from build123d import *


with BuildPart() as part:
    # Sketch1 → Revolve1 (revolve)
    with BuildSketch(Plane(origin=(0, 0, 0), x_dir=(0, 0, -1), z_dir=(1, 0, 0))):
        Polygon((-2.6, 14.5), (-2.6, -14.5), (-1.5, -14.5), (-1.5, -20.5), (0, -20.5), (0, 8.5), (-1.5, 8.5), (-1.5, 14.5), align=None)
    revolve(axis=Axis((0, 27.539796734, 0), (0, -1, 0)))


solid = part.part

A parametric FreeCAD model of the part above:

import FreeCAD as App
import Part
import Sketcher

V = App.Vector


def add_polygon(sketch, points):
    """Adds a closed chain of lines whose ends are joined by coincident constraints."""
    first, n = sketch.GeometryCount, len(points)
    for a, b in zip(points, points[1:] + points[:1]):
        sketch.addGeometry(Part.LineSegment(App.Vector(*a, 0), App.Vector(*b, 0)), False)
    for i in range(n):
        sketch.addConstraint(Sketcher.Constraint("Coincident", first + i, 2, first + (i + 1) % n, 1))

doc = App.newDocument("Part")
params = doc.addObject("Spreadsheet::Sheet", "Params")
for row, (alias, value) in enumerate([
    ("sketch1_width", "29 mm"),
    ("sketch1_width2", "6 mm"),
    ("sketch1_height", "1.1 mm"),
    ("sketch1_height2", "1.5 mm"),
    ("revolution_angle", "360 deg"),
], start=1):
    params.set(f"A{row}", alias)
    params.set(f"B{row}", "=" + value)
    params.setAlias(f"B{row}", alias)

body = doc.addObject("PartDesign::Body", "Body")

sketch1 = doc.addObject("Sketcher::SketchObject", "Sketch")
body.addObject(sketch1)
sketch1.AttachmentSupport = (doc.YZ_Plane, [""])
sketch1.MapMode = "FlatFace"
add_polygon(sketch1, [(14.5, 2.6), (-14.5, 2.6), (-14.5, 1.5), (-20.5, 1.5), (-20.5, 0), (8.5, 0), (8.5, 1.5), (14.5, 1.5)])
sketch1.addConstraint(Sketcher.Constraint("Horizontal", 0))
sketch1.addConstraint(Sketcher.Constraint("Vertical", 1))
sketch1.addConstraint(Sketcher.Constraint("Horizontal", 2))
sketch1.addConstraint(Sketcher.Constraint("Vertical", 3))
sketch1.addConstraint(Sketcher.Constraint("Horizontal", 4))
sketch1.addConstraint(Sketcher.Constraint("Vertical", 5))
sketch1.addConstraint(Sketcher.Constraint("Horizontal", 6))
sketch1.addConstraint(Sketcher.Constraint("Vertical", 7))
sketch1.addConstraint(Sketcher.Constraint("Symmetric", 1, 2, 6, 2, -2))
sketch1.addConstraint(Sketcher.Constraint("PointOnObject", 3, 2, -1))
sketch1.addConstraint(Sketcher.Constraint("Equal", 0, 4))
sketch1.addConstraint(Sketcher.Constraint("DistanceX", 0, 2, 0, 1, 29.0))
sketch1.addConstraint(Sketcher.Constraint("DistanceX", 2, 2, 2, 1, 6.0))
sketch1.addConstraint(Sketcher.Constraint("DistanceY", 1, 2, 1, 1, 1.1))
sketch1.addConstraint(Sketcher.Constraint("DistanceY", 3, 2, 3, 1, 1.5))
sketch1.setExpression("Constraints[19]", "Params.sketch1_width")
sketch1.setExpression("Constraints[20]", "Params.sketch1_width2")
sketch1.setExpression("Constraints[21]", "Params.sketch1_height")
sketch1.setExpression("Constraints[22]", "Params.sketch1_height2")
revolution = doc.addObject("PartDesign::Revolution", "Revolution")
body.addObject(revolution)
revolution.Profile = sketch1
revolution.ReferenceAxis = (sketch1, ["H_Axis"])
revolution.setExpression("Angle", "Params.revolution_angle")

doc.recompute()
